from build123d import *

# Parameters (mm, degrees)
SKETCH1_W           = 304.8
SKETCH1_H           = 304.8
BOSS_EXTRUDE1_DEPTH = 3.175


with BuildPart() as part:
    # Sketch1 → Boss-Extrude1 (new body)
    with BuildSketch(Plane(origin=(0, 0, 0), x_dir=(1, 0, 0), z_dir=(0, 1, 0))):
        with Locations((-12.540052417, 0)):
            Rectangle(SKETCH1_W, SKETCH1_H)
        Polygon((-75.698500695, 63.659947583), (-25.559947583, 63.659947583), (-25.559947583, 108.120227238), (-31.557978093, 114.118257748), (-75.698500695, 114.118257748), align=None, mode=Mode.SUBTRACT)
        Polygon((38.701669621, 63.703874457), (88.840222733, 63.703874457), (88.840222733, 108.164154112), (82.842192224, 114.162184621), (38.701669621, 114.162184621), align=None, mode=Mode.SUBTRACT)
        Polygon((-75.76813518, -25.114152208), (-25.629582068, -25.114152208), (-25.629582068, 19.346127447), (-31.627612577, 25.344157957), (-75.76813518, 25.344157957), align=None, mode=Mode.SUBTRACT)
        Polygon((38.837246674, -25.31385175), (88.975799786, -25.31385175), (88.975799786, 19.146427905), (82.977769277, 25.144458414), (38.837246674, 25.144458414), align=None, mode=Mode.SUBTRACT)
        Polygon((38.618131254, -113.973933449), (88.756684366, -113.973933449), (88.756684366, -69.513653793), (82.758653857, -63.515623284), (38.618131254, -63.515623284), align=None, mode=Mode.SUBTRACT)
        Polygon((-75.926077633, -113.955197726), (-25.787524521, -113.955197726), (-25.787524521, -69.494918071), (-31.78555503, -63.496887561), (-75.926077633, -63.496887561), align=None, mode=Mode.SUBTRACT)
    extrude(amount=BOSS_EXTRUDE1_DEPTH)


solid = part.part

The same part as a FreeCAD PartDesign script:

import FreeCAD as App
import Part
import Sketcher
Q = App.Units.Quantity


def add_polygon(sketch, points):
    """Adds a closed chain of lines whose ends are joined by coincident constraints."""
    first, n = sketch.GeometryCount, len(points)
    for a, b in zip(points, points[1:] + points[:1]):
        sketch.addGeometry(Part.LineSegment(App.Vector(*a, 0), App.Vector(*b, 0)), False)
    for i in range(n):
        sketch.addConstraint(Sketcher.Constraint("Coincident", first + i, 2, first + (i + 1) % n, 1))

doc = App.newDocument("Part")
body = doc.addObject("PartDesign::Body", "Body")

sketch1 = doc.addObject("Sketcher::SketchObject", "Sketch")
body.addObject(sketch1)
sketch1.AttachmentSupport = (doc.XZ_Plane, [""])
sketch1.MapMode = "FlatFace"
add_polygon(sketch1, [(-165, -152), (-165, 152), (140, 152), (140, -152)])
add_polygon(sketch1, [(-26, 114), (-76, 114), (-76, 63), (-32, 63), (-26, 69)])
add_polygon(sketch1, [(89, 114), (39, 114), (39, 64), (83, 64), (89, 70)])
add_polygon(sketch1, [(89, 25), (39, 25), (39, -25), (83, -25), (89, -19)])
add_polygon(sketch1, [(-26, 25), (-76, 25), (-76, -25), (-32, -25), (-26, -19)])
add_polygon(sketch1, [(-26, -64), (-76, -64), (-76, -114), (-32, -114), (-26, -108)])
add_polygon(sketch1, [(89, -64), (39, -64), (39, -114), (83, -114), (89, -108)])
sketch1.addConstraint([
    Sketcher.Constraint("Vertical", 0),
    Sketcher.Constraint("Horizontal", 1),
    Sketcher.Constraint("Vertical", 2),
    Sketcher.Constraint("Horizontal", 3),
    Sketcher.Constraint("Horizontal", 4),
    Sketcher.Constraint("Vertical", 5),
    Sketcher.Constraint("Horizontal", 6),
    Sketcher.Constraint("Vertical", 8),
    Sketcher.Constraint("Horizontal", 9),
    Sketcher.Constraint("Vertical", 10),
    Sketcher.Constraint("Horizontal", 11),
    Sketcher.Constraint("Vertical", 13),
    Sketcher.Constraint("Horizontal", 14),
    Sketcher.Constraint("Vertical", 15),
    Sketcher.Constraint("Horizontal", 16),
    Sketcher.Constraint("Vertical", 18),
    Sketcher.Constraint("Horizontal", 19),
    Sketcher.Constraint("Vertical", 20),
    Sketcher.Constraint("Horizontal", 21),
    Sketcher.Constraint("Vertical", 23),
    Sketcher.Constraint("Horizontal", 24),
    Sketcher.Constraint("Vertical", 25),
    Sketcher.Constraint("Horizontal", 26),
    Sketcher.Constraint("Vertical", 28),
    Sketcher.Constraint("Horizontal", 29),
    Sketcher.Constraint("Vertical", 30),
    Sketcher.Constraint("Horizontal", 31),
    Sketcher.Constraint("Vertical", 33),
    Sketcher.Constraint("Parallel", 7, 12),
    Sketcher.Constraint("Parallel", 12, 17),
    Sketcher.Constraint("Parallel", 17, 22),
    Sketcher.Constraint("Parallel", 22, 27),
    Sketcher.Constraint("Parallel", 27, 32),
    Sketcher.Constraint("Equal", 4, 9),
    Sketcher.Constraint("Equal", 6, 11),
    Sketcher.Constraint("Equal", 9, 14),
    Sketcher.Constraint("Equal", 11, 16),
    Sketcher.Constraint("Equal", 14, 19),
    Sketcher.Constraint("Equal", 16, 21),
    Sketcher.Constraint("Equal", 19, 24),
    Sketcher.Constraint("Equal", 21, 26),
    Sketcher.Constraint("Equal", 24, 29),
    Sketcher.Constraint("Equal", 26, 31),
    Sketcher.Constraint("Equal", 3, 0),
    Sketcher.Constraint("Equal", 5, 10),
    Sketcher.Constraint("Equal", 10, 15),
    Sketcher.Constraint("Equal", 15, 20),
    Sketcher.Constraint("Equal", 20, 25),
    Sketcher.Constraint("Equal", 25, 30),
    Sketcher.Constraint("DistanceX", 1, 1, 1, 2, Q("12 in")),
    Sketcher.Constraint("DistanceY", -1, 1, 0, 2, Q("6 in")),
    Sketcher.Constraint("Angle", 7, Q("45 deg")),
    Sketcher.Constraint("DistanceX", 6, 2, -1, 1, Q("1.2513998 in")),
    Sketcher.Constraint("DistanceY", 5, 2, 5, 1, 50.45831),
    Sketcher.Constraint("DistanceY", 8, 1, 8, 2, 44.46028),
    Sketcher.Constraint("DistanceX", -1, 1, 17, 2, 88.9758),
    Sketcher.Constraint("DistanceX", 24, 2, -1, 1, 75.698501),
    Sketcher.Constraint("DistanceX", 6, 2, 14, 2, 70.622802),
    Sketcher.Constraint("DistanceY", 20, 2, 15, 2, 0.1997),
    Sketcher.Constraint("DistanceY", 24, 2, 19, 2, 88.7741),
    Sketcher.Constraint("DistanceX", 29, 2, 16, 2, 44.2761),
    Sketcher.Constraint("DistanceY", -1, 1, 7, 2, 69.494918),
    Sketcher.Constraint("DistanceX", -1, 1, 9, 2, 38.618131),
    Sketcher.Constraint("DistanceY", -1, 1, 14, 2, 25.313852),
    Sketcher.Constraint("DistanceY", 14, 2, 10, 2, 38.201772),
    Sketcher.Constraint("DistanceX", 19, 2, 6, 2, 43.98258),
    Sketcher.Constraint("DistanceX", 3, 2, 25, 2, 89.241552),
    Sketcher.Constraint("DistanceY", 29, 2, -1, 1, 63.703874),
])
pad1 = doc.addObject("PartDesign::Pad", "Pad")
body.addObject(pad1)
pad1.Profile = sketch1
pad1.Length = Q("0.125 in")
pad1.Reversed = True

doc.recompute()
